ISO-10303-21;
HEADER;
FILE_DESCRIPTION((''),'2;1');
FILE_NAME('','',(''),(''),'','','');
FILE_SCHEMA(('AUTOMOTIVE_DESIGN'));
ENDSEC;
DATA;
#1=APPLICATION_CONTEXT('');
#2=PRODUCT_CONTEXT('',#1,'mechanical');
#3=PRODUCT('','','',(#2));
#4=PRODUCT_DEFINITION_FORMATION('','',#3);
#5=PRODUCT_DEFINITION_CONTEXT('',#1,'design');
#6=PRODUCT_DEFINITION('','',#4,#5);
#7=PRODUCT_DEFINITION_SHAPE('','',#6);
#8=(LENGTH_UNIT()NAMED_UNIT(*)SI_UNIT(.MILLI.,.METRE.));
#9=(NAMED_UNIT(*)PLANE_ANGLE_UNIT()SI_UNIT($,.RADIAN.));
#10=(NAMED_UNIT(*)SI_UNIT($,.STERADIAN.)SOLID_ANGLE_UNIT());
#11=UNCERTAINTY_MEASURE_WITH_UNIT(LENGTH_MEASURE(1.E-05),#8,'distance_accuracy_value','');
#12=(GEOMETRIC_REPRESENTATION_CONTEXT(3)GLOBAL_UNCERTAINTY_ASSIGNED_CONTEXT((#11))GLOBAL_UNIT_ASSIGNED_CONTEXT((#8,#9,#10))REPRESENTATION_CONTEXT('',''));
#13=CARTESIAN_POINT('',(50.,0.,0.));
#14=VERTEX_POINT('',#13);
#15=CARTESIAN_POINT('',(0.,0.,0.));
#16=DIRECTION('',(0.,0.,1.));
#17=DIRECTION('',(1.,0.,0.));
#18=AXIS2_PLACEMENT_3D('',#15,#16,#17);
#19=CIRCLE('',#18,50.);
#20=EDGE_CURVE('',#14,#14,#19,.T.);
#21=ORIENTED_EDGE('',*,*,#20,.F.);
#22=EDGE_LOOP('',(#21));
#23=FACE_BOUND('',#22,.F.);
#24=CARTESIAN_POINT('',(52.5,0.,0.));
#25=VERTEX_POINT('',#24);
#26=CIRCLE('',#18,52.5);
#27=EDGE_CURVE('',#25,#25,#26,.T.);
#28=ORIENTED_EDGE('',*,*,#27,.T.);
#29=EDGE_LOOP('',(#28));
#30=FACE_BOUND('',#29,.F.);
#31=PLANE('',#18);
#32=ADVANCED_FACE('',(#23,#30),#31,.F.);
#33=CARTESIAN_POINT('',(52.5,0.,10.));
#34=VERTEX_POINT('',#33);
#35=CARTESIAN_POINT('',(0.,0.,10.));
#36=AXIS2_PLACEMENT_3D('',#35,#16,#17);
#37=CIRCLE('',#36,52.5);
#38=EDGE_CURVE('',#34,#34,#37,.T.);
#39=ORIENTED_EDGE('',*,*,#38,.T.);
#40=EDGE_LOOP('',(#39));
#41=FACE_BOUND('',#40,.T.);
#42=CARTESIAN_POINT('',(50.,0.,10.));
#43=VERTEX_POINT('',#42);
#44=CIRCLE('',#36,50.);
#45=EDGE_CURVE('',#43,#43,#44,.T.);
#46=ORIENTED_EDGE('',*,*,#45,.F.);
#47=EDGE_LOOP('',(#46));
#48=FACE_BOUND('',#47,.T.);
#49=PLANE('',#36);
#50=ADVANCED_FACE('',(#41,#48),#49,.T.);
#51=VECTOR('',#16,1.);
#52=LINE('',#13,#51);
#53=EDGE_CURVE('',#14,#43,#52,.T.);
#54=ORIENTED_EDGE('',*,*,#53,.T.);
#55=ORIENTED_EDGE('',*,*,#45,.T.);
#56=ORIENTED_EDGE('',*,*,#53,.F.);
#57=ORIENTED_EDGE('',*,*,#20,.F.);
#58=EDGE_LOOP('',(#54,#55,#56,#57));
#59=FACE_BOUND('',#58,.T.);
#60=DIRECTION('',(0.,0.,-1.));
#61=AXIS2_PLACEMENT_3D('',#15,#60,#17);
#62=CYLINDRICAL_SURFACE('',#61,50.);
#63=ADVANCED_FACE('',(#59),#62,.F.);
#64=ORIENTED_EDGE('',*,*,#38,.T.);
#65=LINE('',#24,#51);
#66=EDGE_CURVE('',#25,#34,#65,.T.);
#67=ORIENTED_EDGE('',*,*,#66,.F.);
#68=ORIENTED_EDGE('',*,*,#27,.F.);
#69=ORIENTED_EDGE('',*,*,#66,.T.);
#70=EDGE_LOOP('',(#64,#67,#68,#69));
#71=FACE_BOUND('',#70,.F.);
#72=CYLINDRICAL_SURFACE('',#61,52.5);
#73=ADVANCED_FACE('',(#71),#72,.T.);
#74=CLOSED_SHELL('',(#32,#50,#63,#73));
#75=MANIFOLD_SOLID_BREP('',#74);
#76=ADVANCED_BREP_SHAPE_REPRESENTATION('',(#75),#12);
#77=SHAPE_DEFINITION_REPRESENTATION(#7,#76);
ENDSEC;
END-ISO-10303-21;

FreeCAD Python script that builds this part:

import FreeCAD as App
import Part
import Sketcher
Q = App.Units.Quantity

doc = App.newDocument("Part")
body = doc.addObject("PartDesign::Body", "Body")

sketch1 = doc.addObject("Sketcher::SketchObject", "Sketch")
body.addObject(sketch1)
sketch1.AttachmentSupport = (doc.XY_Plane, [""])
sketch1.MapMode = "FlatFace"
sketch1.addGeometry([
    Part.Circle(App.Vector(0, 0, 0), App.Vector(0, 0, 1), 52),
    Part.Circle(App.Vector(0, 0, 0), App.Vector(0, 0, 1), 50),
], False)
sketch1.addConstraint([
    Sketcher.Constraint("Coincident", 0, 3, -1, 1),
    Sketcher.Constraint("Coincident", 1, 3, -1, 1),
    Sketcher.Constraint("Diameter", 0, Q("105 mm")),
    Sketcher.Constraint("Diameter", 1, Q("100 mm")),
])
pad1 = doc.addObject("PartDesign::Pad", "Pad")
body.addObject(pad1)
pad1.Profile = sketch1
pad1.Length = 10

doc.recompute()
